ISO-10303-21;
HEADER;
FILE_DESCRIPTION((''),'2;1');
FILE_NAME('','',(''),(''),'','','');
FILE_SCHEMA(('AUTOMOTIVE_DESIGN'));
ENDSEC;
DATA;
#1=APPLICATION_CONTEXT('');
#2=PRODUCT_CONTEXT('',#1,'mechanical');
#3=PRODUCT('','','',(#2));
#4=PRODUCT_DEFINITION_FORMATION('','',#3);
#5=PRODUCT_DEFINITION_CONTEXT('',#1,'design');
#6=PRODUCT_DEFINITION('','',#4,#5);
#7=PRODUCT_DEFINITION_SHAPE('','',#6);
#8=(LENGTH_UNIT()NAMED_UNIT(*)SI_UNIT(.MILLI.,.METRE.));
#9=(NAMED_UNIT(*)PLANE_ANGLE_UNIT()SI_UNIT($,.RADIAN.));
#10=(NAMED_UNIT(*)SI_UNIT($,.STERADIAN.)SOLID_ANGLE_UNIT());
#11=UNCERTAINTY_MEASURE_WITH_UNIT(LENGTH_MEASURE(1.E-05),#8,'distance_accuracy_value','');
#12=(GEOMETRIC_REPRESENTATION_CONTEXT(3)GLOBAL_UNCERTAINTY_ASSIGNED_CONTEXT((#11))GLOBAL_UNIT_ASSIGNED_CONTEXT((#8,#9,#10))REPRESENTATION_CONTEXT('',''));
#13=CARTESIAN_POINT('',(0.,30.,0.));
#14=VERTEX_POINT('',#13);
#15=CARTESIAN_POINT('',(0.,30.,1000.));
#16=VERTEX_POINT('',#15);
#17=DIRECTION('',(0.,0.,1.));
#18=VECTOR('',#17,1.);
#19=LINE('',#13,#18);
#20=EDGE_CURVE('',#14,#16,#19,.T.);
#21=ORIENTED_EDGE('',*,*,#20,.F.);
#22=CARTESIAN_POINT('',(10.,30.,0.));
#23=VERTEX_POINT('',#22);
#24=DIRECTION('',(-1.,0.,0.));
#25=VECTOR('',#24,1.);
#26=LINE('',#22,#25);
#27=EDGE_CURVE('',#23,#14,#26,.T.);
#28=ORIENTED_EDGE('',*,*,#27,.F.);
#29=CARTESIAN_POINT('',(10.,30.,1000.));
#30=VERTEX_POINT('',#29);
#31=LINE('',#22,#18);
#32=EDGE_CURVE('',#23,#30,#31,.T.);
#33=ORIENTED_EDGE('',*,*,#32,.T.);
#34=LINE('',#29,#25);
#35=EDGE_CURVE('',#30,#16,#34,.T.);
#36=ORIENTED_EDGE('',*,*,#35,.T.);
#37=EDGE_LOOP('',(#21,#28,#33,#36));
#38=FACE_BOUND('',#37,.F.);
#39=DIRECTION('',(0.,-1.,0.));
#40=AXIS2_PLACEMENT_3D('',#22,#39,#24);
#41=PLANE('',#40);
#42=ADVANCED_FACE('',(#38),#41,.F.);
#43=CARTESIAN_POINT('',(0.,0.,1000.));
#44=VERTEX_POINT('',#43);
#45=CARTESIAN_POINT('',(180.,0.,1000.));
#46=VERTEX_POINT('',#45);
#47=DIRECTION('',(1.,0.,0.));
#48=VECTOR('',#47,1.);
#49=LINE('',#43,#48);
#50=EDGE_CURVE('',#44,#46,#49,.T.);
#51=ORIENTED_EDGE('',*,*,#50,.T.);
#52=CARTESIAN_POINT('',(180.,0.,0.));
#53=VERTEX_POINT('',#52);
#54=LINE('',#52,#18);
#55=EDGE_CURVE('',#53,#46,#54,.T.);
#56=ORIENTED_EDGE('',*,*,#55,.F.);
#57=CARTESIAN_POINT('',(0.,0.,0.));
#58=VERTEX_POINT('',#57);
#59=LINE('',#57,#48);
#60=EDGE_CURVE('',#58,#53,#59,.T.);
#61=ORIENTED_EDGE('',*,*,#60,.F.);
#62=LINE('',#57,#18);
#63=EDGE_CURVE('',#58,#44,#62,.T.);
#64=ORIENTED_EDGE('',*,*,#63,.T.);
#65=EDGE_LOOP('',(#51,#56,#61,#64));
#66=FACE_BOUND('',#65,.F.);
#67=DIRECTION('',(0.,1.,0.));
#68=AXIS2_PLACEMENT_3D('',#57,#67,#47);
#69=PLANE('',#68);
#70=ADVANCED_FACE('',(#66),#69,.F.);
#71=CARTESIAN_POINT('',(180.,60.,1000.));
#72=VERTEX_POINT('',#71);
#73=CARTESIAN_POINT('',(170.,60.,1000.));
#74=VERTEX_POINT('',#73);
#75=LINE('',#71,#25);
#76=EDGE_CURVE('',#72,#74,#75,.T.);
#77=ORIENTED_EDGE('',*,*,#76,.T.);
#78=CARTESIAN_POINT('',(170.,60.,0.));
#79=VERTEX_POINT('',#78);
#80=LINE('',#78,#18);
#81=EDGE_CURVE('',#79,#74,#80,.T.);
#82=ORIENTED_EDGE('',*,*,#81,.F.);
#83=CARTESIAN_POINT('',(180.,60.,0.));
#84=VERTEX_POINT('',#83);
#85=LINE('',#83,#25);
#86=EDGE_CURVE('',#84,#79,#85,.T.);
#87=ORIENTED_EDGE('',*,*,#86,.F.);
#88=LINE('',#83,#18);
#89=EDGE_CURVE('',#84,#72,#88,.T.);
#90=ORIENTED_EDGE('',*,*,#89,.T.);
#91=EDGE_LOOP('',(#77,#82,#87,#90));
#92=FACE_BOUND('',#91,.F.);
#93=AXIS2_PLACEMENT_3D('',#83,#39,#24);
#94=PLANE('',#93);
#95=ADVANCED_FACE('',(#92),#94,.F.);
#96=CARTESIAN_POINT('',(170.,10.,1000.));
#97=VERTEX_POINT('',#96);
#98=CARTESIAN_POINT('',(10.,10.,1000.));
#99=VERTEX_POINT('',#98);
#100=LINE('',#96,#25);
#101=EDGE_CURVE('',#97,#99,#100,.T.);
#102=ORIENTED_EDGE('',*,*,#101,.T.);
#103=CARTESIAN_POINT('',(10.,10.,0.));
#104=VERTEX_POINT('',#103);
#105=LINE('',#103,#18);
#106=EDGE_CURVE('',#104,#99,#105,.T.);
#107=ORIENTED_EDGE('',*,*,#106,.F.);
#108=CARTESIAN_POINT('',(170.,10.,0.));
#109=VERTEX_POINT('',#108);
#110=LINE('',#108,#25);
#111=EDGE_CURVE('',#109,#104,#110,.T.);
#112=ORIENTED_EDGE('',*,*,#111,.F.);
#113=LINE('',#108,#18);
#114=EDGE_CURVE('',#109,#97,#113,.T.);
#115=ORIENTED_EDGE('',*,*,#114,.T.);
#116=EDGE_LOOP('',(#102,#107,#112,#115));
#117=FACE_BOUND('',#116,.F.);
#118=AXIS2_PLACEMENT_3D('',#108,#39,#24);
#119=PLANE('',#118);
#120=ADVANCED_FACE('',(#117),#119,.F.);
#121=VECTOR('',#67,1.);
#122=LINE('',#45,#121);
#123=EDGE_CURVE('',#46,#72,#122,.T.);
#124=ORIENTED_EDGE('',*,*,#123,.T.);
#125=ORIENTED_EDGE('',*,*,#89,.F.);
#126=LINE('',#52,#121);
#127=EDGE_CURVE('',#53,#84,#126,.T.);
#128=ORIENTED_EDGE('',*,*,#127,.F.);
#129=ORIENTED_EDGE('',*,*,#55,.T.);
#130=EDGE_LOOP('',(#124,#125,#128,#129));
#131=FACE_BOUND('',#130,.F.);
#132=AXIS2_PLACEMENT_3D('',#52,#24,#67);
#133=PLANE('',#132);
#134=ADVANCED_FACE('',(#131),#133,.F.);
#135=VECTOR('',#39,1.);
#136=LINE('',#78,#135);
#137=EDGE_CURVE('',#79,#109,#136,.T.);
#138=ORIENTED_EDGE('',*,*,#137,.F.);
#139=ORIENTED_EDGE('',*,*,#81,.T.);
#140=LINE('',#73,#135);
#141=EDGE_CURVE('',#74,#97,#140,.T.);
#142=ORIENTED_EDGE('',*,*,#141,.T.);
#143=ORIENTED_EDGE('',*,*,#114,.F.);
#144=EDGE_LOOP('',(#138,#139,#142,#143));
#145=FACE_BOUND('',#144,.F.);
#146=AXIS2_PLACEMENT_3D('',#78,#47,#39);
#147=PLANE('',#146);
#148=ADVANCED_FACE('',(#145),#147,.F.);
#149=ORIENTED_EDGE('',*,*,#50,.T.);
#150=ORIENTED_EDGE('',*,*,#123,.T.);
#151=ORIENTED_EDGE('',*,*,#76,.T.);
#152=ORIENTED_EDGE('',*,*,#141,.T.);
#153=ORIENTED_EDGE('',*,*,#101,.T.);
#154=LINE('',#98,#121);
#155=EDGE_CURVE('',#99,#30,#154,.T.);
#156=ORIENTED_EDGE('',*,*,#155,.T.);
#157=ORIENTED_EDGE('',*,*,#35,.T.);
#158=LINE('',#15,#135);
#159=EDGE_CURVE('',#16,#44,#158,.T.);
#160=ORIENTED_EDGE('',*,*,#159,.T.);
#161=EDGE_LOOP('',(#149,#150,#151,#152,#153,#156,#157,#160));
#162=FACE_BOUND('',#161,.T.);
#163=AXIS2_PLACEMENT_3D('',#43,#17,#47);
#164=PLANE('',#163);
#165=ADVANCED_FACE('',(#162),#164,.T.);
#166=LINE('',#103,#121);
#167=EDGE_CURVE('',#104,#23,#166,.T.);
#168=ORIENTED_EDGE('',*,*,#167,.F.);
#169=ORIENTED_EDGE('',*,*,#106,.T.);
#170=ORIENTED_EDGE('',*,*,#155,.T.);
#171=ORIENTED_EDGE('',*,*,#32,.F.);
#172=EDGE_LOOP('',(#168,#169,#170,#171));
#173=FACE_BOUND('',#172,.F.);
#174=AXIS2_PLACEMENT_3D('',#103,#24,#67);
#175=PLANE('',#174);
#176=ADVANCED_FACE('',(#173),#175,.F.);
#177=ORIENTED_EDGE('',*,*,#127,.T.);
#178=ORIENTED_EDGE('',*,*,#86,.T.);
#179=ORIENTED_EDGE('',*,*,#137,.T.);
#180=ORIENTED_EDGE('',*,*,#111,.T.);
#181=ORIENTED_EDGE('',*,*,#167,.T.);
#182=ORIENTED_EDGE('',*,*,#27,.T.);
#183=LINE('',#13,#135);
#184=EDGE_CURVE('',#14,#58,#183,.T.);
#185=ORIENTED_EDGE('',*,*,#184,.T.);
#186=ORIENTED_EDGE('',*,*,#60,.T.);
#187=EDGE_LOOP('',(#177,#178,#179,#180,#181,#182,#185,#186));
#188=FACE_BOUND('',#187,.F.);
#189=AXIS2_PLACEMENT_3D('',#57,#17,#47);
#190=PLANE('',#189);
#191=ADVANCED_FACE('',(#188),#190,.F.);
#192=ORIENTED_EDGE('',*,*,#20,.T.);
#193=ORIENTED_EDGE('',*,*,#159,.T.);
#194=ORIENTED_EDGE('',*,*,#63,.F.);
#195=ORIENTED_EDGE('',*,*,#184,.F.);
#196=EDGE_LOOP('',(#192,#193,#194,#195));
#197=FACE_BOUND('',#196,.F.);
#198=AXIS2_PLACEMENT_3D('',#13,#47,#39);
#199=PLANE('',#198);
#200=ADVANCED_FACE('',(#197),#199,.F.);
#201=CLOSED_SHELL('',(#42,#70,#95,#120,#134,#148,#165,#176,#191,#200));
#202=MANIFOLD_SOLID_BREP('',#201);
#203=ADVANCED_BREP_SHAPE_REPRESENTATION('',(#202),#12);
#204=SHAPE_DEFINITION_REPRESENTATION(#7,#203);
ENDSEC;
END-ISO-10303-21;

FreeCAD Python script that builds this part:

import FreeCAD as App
import Part
import Sketcher
from FreeCAD import Vector
Q = App.Units.Quantity

doc = App.newDocument("Part")
body = doc.addObject("PartDesign::Body", "Body")

# Sketch on XY plane
sketch1 = body.newObject("Sketcher::SketchObject", "Sketch")
sketch1.AttachmentSupport = (doc.getObject("XY_Plane"), [""])
sketch1.MapMode = "FlatFace"
sketch1.addGeometry([
    Part.LineSegment(Vector(0, 30, 0), Vector(0, 0, 0)),  # 0
    Part.LineSegment(Vector(0, 0, 0), Vector(180, 0, 0)),  # 1
    Part.LineSegment(Vector(180, 0, 0), Vector(180, 60, 0)),  # 2
    Part.LineSegment(Vector(180, 60, 0), Vector(170, 60, 0)),  # 3
    Part.LineSegment(Vector(170, 60, 0), Vector(170, 10, 0)),  # 4
    Part.LineSegment(Vector(170, 10, 0), Vector(10, 10, 0)),  # 5
    Part.LineSegment(Vector(10, 10, 0), Vector(10, 30, 0)),  # 6
    Part.LineSegment(Vector(10, 30, 0), Vector(0, 30, 0)),  # 7
], False)
sketch1.addConstraint([
    Sketcher.Constraint("Coincident", 0, 2, 1, 1),
    Sketcher.Constraint("Coincident", 1, 2, 2, 1),
    Sketcher.Constraint("Coincident", 2, 2, 3, 1),
    Sketcher.Constraint("Coincident", 3, 2, 4, 1),
    Sketcher.Constraint("Coincident", 4, 2, 5, 1),
    Sketcher.Constraint("Coincident", 5, 2, 6, 1),
    Sketcher.Constraint("Coincident", 6, 2, 7, 1),
    Sketcher.Constraint("Coincident", 7, 2, 0, 1),
    Sketcher.Constraint("Vertical", 0),
    Sketcher.Constraint("Horizontal", 1),
    Sketcher.Constraint("Vertical", 2),
    Sketcher.Constraint("Horizontal", 3),
    Sketcher.Constraint("Vertical", 4),
    Sketcher.Constraint("Horizontal", 5),
    Sketcher.Constraint("Vertical", 6),
    Sketcher.Constraint("Horizontal", 7),
    Sketcher.Constraint("Coincident", 0, 2, -1, 1),
    Sketcher.Constraint("Equal", 3, 7),
    Sketcher.Constraint("DistanceX", 1, 1, 1, 2, Q("180 mm")),
    Sketcher.Constraint("DistanceX", 3, 2, 3, 1, Q("10 mm")),
    Sketcher.Constraint("DistanceY", 0, 2, 0, 1, Q("30 mm")),
    Sketcher.Constraint("DistanceY", 2, 1, 2, 2, Q("60 mm")),
    Sketcher.Constraint("DistanceY", -1, 1, 4, 2, Q("10 mm")),
])
pad1 = body.newObject("PartDesign::Pad", "Pad")
pad1.Profile = sketch1
pad1.Length = 1000

doc.recompute()
